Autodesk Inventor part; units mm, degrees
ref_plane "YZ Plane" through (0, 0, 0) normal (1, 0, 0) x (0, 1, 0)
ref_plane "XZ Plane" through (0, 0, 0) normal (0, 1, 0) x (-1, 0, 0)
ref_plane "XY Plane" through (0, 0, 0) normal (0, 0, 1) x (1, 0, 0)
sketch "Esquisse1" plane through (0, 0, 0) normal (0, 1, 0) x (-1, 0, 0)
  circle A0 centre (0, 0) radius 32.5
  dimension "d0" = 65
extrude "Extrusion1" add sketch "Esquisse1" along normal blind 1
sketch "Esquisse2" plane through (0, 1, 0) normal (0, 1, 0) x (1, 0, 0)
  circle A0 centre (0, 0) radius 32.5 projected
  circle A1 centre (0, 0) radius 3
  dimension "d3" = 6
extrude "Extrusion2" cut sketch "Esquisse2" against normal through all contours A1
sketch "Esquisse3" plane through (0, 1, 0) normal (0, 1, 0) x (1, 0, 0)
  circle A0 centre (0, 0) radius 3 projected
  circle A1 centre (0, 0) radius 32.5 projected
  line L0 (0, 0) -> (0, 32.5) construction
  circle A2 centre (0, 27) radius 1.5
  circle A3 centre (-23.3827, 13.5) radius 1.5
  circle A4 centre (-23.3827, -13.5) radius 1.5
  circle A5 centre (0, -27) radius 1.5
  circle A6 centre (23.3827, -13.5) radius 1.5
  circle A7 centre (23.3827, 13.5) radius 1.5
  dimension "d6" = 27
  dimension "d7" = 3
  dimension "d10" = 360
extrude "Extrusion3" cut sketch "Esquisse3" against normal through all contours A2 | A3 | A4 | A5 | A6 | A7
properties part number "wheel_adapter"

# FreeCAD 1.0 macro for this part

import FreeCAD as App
import Part
import Sketcher

V = App.Vector

doc = App.newDocument("Part")
params = doc.addObject("Spreadsheet::Sheet", "Params")
for row, (alias, value) in enumerate([
    ("sketch1_diameter", "65 mm"),
    ("pad1_length", "1 mm"),
    ("sketch2_diameter", "6 mm"),
    ("sketch3_diameter", "3 mm"),
], start=1):
    params.set(f"A{row}", alias)
    params.set(f"B{row}", "=" + value)
    params.setAlias(f"B{row}", alias)

body = doc.addObject("PartDesign::Body", "Body")

sketch1 = body.newObject("Sketcher::SketchObject", "Sketch")
sketch1.AttachmentSupport = (doc.getObject("XZ_Plane"), [""])
sketch1.MapMode = "FlatFace"
sketch1.addGeometry(Part.Circle(V(0, 0, 0), V(0, 0, 1), 32), False)
sketch1.addConstraint([
    Sketcher.Constraint("Coincident", 0, 3, -1, 1),
    Sketcher.Constraint("Diameter", 0, 65.0),
])
sketch1.setExpression("Constraints[1]", "Params.sketch1_diameter")
pad1 = body.newObject("PartDesign::Pad", "Pad")
pad1.Profile = sketch1
pad1.setExpression("Length", "Params.pad1_length")
pad1.Reversed = True

sketch2 = body.newObject("Sketcher::SketchObject", "Sketch001")
sketch2.AttachmentSupport = (doc.getObject("XZ_Plane"), [""])
sketch2.MapMode = "FlatFace"
sketch2.AttachmentOffset = App.Placement(V(0, 0, -1), App.Rotation())
sketch2.addGeometry(Part.Circle(V(0, 0, 0), V(0, 0, 1), 3), False)
sketch2.addConstraint([
    Sketcher.Constraint("Coincident", 0, 3, -1, 1),
    Sketcher.Constraint("Diameter", 0, 6.0),
])
sketch2.setExpression("Constraints[1]", "Params.sketch2_diameter")
pocket1 = body.newObject("PartDesign::Pocket", "Pocket")
pocket1.Profile = sketch2
pocket1.Type = "ThroughAll"
pocket1.Reversed = True

sketch3 = body.newObject("Sketcher::SketchObject", "Sketch002")
sketch3.AttachmentSupport = (doc.getObject("XZ_Plane"), [""])
sketch3.MapMode = "FlatFace"
sketch3.AttachmentOffset = App.Placement(V(0, 0, -1), App.Rotation())
sketch3.addGeometry([
    Part.Circle(V(0, -27, 0), V(0, 0, 1), 1.5),
    Part.Circle(V(-23.4, -13.5, 0), V(0, 0, 1), 1.5),
    Part.Circle(V(-23.4, 13.5, 0), V(0, 0, 1), 1.5),
    Part.Circle(V(0, 27, 0), V(0, 0, 1), 1.5),
    Part.Circle(V(23.4, 13.5, 0), V(0, 0, 1), 1.5),
    Part.Circle(V(23.4, -13.5, 0), V(0, 0, 1), 1.5),
], False)
sketch3.addConstraint([
    Sketcher.Constraint("Equal", 0, 1),
    Sketcher.Constraint("Equal", 1, 2),
    Sketcher.Constraint("Equal", 2, 3),
    Sketcher.Constraint("Equal", 3, 4),
    Sketcher.Constraint("Equal", 4, 5),
    Sketcher.Constraint("Symmetric", 0, 3, 3, 3, -1, 1),
    Sketcher.Constraint("Symmetric", 1, 3, 4, 3, -1, 1),
    Sketcher.Constraint("Symmetric", 2, 3, 5, 3, -1, 1),
    Sketcher.Constraint("Symmetric", 2, 3, 4, 3, -2),
    Sketcher.Constraint("PointOnObject", 0, 3, -2),
    Sketcher.Constraint("Diameter", 0, 3.0),
    Sketcher.Constraint("DistanceY", 0, 3, -1, 1, 27.0),
    Sketcher.Constraint("DistanceY", 1, 3, 2, 3, 27.0),
    Sketcher.Constraint("DistanceX", 1, 3, -1, 1, 23.3827),
])
sketch3.setExpression("Constraints[10]", "Params.sketch3_diameter")
pocket2 = body.newObject("PartDesign::Pocket", "Pocket001")
pocket2.Profile = sketch3
pocket2.Type = "ThroughAll"
pocket2.Reversed = True

doc.recompute()
